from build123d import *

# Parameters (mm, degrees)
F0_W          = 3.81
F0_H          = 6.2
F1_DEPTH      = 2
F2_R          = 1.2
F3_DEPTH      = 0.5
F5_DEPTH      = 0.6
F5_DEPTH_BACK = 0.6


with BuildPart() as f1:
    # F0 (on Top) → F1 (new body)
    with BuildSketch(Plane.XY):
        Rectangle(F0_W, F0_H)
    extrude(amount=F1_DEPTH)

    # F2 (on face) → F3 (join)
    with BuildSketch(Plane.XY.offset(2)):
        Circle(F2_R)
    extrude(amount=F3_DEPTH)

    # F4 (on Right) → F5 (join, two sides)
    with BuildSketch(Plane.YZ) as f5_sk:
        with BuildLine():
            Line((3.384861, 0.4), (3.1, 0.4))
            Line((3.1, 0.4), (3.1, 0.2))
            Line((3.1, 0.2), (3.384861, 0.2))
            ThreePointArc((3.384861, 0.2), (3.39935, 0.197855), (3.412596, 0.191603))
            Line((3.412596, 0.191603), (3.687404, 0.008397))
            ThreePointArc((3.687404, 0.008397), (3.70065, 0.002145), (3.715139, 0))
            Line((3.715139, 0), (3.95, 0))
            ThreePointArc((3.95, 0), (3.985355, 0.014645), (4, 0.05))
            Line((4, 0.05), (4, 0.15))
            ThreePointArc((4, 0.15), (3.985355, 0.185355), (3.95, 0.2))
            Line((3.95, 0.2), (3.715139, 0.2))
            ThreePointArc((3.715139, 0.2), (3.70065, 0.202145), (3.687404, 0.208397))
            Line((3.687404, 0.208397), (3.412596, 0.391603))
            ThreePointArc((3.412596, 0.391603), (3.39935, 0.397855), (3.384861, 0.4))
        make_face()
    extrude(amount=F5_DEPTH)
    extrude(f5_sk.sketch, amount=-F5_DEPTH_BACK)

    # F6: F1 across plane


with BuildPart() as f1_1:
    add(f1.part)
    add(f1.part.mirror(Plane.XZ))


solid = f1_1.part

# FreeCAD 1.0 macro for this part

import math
import FreeCAD as App
import Part
import Sketcher

V = App.Vector

doc = App.newDocument("Part")
body = doc.addObject("PartDesign::Body", "Body")

# Sketch on XY plane
sketch1 = body.newObject("Sketcher::SketchObject", "Sketch")
sketch1.AttachmentSupport = (doc.getObject("XY_Plane"), [""])
sketch1.MapMode = "FlatFace"
sketch1.addGeometry(Part.LineSegment(V(-1.9, 3.1, 0), V(-1.9, -3.1, 0)), False)
sketch1.addGeometry(Part.LineSegment(V(-1.9, -3.1, 0), V(1.9, -3.1, 0)), False)
sketch1.addGeometry(Part.LineSegment(V(1.9, -3.1, 0), V(1.9, 3.1, 0)), False)
sketch1.addGeometry(Part.LineSegment(V(1.9, 3.1, 0), V(-1.9, 3.1, 0)), False)
sketch1.addConstraint(Sketcher.Constraint("Coincident", 0, 2, 1, 1))
sketch1.addConstraint(Sketcher.Constraint("Coincident", 1, 2, 2, 1))
sketch1.addConstraint(Sketcher.Constraint("Coincident", 2, 2, 3, 1))
sketch1.addConstraint(Sketcher.Constraint("Coincident", 3, 2, 0, 1))
sketch1.addConstraint(Sketcher.Constraint("Vertical", 0))
sketch1.addConstraint(Sketcher.Constraint("Horizontal", 1))
sketch1.addConstraint(Sketcher.Constraint("Vertical", 2))
sketch1.addConstraint(Sketcher.Constraint("Horizontal", 3))
sketch1.addConstraint(Sketcher.Constraint("Symmetric", 0, 2, 2, 2, -1, 1))
sketch1.addConstraint(Sketcher.Constraint("DistanceY", 0, 2, 0, 1, 6.2))
sketch1.addConstraint(Sketcher.Constraint("DistanceX", 1, 1, 1, 2, 3.81))
pad1 = body.newObject("PartDesign::Pad", "Pad")
pad1.Profile = sketch1
pad1.Length = 2

# Sketch on XY plane
sketch2 = body.newObject("Sketcher::SketchObject", "Sketch001")
sketch2.AttachmentSupport = (doc.getObject("XY_Plane"), [""])
sketch2.MapMode = "FlatFace"
sketch2.AttachmentOffset = App.Placement(V(0, 0, 2), App.Rotation())
sketch2.addGeometry(Part.Circle(V(0, 0, 0), V(0, 0, 1), 1.2), False)
sketch2.addConstraint(Sketcher.Constraint("Coincident", 0, 3, -1, 1))
sketch2.addConstraint(Sketcher.Constraint("Diameter", 0, 2.4))
pad2 = body.newObject("PartDesign::Pad", "Pad001")
pad2.Profile = sketch2
pad2.Length = 0.5

# Sketch on YZ plane
sketch3 = body.newObject("Sketcher::SketchObject", "Sketch002")
sketch3.AttachmentSupport = (doc.getObject("YZ_Plane"), [""])
sketch3.MapMode = "FlatFace"
sketch3.addGeometry(Part.LineSegment(V(3.385, 0.4, 0), V(3.1, 0.4, 0)), False)
sketch3.addGeometry(Part.LineSegment(V(3.1, 0.4, 0), V(3.1, 0.2, 0)), False)
sketch3.addGeometry(Part.LineSegment(V(3.1, 0.2, 0), V(3.385, 0.2, 0)), False)
sketch3.addGeometry(Part.ArcOfCircle(Part.Circle(V(3.385, 0.15, 0), V(0, 0, 1), 0.05), math.radians(56), math.radians(90)), False)
sketch3.addGeometry(Part.LineSegment(V(3.413, 0.192, 0), V(3.687, 0.008, 0)), False)
sketch3.addGeometry(Part.ArcOfCircle(Part.Circle(V(3.715, 0.05, 0), V(0, 0, 1), 0.05), math.radians(-124), math.radians(-90)), False)
sketch3.addGeometry(Part.LineSegment(V(3.715, 0, 0), V(3.95, 0, 0)), False)
sketch3.addGeometry(Part.ArcOfCircle(Part.Circle(V(3.95, 0.05, 0), V(0, 0, 1), 0.05), math.radians(-90), math.radians(0)), False)
sketch3.addGeometry(Part.LineSegment(V(4, 0.05, 0), V(4, 0.15, 0)), False)
sketch3.addGeometry(Part.ArcOfCircle(Part.Circle(V(3.95, 0.15, 0), V(0, 0, 1), 0.05), math.radians(0), math.radians(90)), False)
sketch3.addGeometry(Part.LineSegment(V(3.95, 0.2, 0), V(3.715, 0.2, 0)), False)
sketch3.addGeometry(Part.ArcOfCircle(Part.Circle(V(3.715, 0.25, 0), V(0, 0, 1), 0.05), math.radians(-124), math.radians(-90)), False)
sketch3.addGeometry(Part.LineSegment(V(3.687, 0.208, 0), V(3.413, 0.392, 0)), False)
sketch3.addGeometry(Part.ArcOfCircle(Part.Circle(V(3.385, 0.35, 0), V(0, 0, 1), 0.05), math.radians(56), math.radians(90)), False)
sketch3.addConstraint(Sketcher.Constraint("Coincident", 0, 2, 1, 1))
sketch3.addConstraint(Sketcher.Constraint("Coincident", 1, 2, 2, 1))
sketch3.addConstraint(Sketcher.Constraint("Coincident", 2, 2, 3, 2))
sketch3.addConstraint(Sketcher.Constraint("Coincident", 3, 1, 4, 1))
sketch3.addConstraint(Sketcher.Constraint("Coincident", 4, 2, 5, 1))
sketch3.addConstraint(Sketcher.Constraint("Coincident", 5, 2, 6, 1))
sketch3.addConstraint(Sketcher.Constraint("Coincident", 6, 2, 7, 1))
sketch3.addConstraint(Sketcher.Constraint("Coincident", 7, 2, 8, 1))
sketch3.addConstraint(Sketcher.Constraint("Coincident", 8, 2, 9, 1))
sketch3.addConstraint(Sketcher.Constraint("Coincident", 9, 2, 10, 1))
sketch3.addConstraint(Sketcher.Constraint("Coincident", 10, 2, 11, 2))
sketch3.addConstraint(Sketcher.Constraint("Coincident", 11, 1, 12, 1))
sketch3.addConstraint(Sketcher.Constraint("Coincident", 12, 2, 13, 1))
sketch3.addConstraint(Sketcher.Constraint("Coincident", 13, 2, 0, 1))
sketch3.addConstraint(Sketcher.Constraint("Horizontal", 0))
sketch3.addConstraint(Sketcher.Constraint("Vertical", 1))
sketch3.addConstraint(Sketcher.Constraint("Horizontal", 2))
sketch3.addConstraint(Sketcher.Constraint("Horizontal", 6))
sketch3.addConstraint(Sketcher.Constraint("Vertical", 8))
sketch3.addConstraint(Sketcher.Constraint("Horizontal", 10))
sketch3.addConstraint(Sketcher.Constraint("Equal", 3, 5))
sketch3.addConstraint(Sketcher.Constraint("Equal", 7, 9))
sketch3.addConstraint(Sketcher.Constraint("Equal", 5, 11))
sketch3.addConstraint(Sketcher.Constraint("Equal", 11, 13))
sketch3.addConstraint(Sketcher.Constraint("PointOnObject", 5, 2, -1))
sketch3.addConstraint(Sketcher.Constraint("Parallel", 4, 12))
sketch3.addConstraint(Sketcher.Constraint("Horizontal", 9, 3, 8, 2))
sketch3.addConstraint(Sketcher.Constraint("Horizontal", 2, 2, 9, 2))
sketch3.addConstraint(Sketcher.Constraint("Vertical", 5, 3, 11, 3))
sketch3.addConstraint(Sketcher.Constraint("Vertical", 3, 3, 13, 3))
sketch3.addConstraint(Sketcher.Constraint("Vertical", 13, 3, 2, 2))
sketch3.addConstraint(Sketcher.Constraint("Vertical", 11, 3, 5, 2))
sketch3.addConstraint(Sketcher.Constraint("Vertical", 9, 3, 6, 2))
sketch3.addConstraint(Sketcher.Constraint("Vertical", 6, 2, 9, 2))
sketch3.addConstraint(Sketcher.Constraint("Vertical", 5, 2, 10, 2))
sketch3.addConstraint(Sketcher.Constraint("Vertical", 4, 2, 11, 1))
sketch3.addConstraint(Sketcher.Constraint("Vertical", 3, 1, 12, 2))
sketch3.addConstraint(Sketcher.Constraint("Vertical", 2, 2, 13, 2))
sketch3.addConstraint(Sketcher.Constraint("Radius", 7, 0.050001))
sketch3.addConstraint(Sketcher.Constraint("DistanceY", 1, 2, 1, 1, 0.2))
sketch3.addConstraint(Sketcher.Constraint("DistanceY", 8, 1, 8, 2, 0.1))
sketch3.addConstraint(Sketcher.Constraint("DistanceX", -1, 1, 7, 2, 4.0))
sketch3.addConstraint(Sketcher.Constraint("DistanceX", -1, 1, 0, 2, 3.1))
sketch3.addConstraint(Sketcher.Constraint("DistanceY", 7, 3, 3, 3, 0.100001))
sketch3.addConstraint(Sketcher.Constraint("DistanceX", 0, 2, 0, 1, 0.284861))
sketch3.addConstraint(Sketcher.Constraint("DistanceX", 6, 1, 6, 2, 0.234861))
sketch3.addConstraint(Sketcher.Constraint("DistanceY", 3, 3, 3, 1, 0.0416))
sketch3.addConstraint(Sketcher.Constraint("DistanceY", 4, 2, 5, 3, 0.0416))
pad3 = body.newObject("PartDesign::Pad", "Pad002")
pad3.Profile = sketch3
pad3.Type = "TwoLengths"
pad3.Length = 0.6
pad3.Length2 = 0.6
body2 = doc.addObject("PartDesign::Body", "Body001")
doc.recompute()

body2.BaseFeature = body
doc.recompute()

mirroring = doc.addObject("Part::Mirroring", "Mirroring")
mirroring.Source = body
mirroring.Base = V(0, 0, 0)
mirroring.Normal = V(0, -1, 0)
body3 = doc.addObject("PartDesign::Body", "Body002")
body3.BaseFeature = mirroring
boolean = body2.newObject("PartDesign::Boolean", "Boolean")
boolean.Type = "Fuse"
boolean.addObjects([body3])
doc.recompute()
mirroring.Visibility = False

doc.recompute()
